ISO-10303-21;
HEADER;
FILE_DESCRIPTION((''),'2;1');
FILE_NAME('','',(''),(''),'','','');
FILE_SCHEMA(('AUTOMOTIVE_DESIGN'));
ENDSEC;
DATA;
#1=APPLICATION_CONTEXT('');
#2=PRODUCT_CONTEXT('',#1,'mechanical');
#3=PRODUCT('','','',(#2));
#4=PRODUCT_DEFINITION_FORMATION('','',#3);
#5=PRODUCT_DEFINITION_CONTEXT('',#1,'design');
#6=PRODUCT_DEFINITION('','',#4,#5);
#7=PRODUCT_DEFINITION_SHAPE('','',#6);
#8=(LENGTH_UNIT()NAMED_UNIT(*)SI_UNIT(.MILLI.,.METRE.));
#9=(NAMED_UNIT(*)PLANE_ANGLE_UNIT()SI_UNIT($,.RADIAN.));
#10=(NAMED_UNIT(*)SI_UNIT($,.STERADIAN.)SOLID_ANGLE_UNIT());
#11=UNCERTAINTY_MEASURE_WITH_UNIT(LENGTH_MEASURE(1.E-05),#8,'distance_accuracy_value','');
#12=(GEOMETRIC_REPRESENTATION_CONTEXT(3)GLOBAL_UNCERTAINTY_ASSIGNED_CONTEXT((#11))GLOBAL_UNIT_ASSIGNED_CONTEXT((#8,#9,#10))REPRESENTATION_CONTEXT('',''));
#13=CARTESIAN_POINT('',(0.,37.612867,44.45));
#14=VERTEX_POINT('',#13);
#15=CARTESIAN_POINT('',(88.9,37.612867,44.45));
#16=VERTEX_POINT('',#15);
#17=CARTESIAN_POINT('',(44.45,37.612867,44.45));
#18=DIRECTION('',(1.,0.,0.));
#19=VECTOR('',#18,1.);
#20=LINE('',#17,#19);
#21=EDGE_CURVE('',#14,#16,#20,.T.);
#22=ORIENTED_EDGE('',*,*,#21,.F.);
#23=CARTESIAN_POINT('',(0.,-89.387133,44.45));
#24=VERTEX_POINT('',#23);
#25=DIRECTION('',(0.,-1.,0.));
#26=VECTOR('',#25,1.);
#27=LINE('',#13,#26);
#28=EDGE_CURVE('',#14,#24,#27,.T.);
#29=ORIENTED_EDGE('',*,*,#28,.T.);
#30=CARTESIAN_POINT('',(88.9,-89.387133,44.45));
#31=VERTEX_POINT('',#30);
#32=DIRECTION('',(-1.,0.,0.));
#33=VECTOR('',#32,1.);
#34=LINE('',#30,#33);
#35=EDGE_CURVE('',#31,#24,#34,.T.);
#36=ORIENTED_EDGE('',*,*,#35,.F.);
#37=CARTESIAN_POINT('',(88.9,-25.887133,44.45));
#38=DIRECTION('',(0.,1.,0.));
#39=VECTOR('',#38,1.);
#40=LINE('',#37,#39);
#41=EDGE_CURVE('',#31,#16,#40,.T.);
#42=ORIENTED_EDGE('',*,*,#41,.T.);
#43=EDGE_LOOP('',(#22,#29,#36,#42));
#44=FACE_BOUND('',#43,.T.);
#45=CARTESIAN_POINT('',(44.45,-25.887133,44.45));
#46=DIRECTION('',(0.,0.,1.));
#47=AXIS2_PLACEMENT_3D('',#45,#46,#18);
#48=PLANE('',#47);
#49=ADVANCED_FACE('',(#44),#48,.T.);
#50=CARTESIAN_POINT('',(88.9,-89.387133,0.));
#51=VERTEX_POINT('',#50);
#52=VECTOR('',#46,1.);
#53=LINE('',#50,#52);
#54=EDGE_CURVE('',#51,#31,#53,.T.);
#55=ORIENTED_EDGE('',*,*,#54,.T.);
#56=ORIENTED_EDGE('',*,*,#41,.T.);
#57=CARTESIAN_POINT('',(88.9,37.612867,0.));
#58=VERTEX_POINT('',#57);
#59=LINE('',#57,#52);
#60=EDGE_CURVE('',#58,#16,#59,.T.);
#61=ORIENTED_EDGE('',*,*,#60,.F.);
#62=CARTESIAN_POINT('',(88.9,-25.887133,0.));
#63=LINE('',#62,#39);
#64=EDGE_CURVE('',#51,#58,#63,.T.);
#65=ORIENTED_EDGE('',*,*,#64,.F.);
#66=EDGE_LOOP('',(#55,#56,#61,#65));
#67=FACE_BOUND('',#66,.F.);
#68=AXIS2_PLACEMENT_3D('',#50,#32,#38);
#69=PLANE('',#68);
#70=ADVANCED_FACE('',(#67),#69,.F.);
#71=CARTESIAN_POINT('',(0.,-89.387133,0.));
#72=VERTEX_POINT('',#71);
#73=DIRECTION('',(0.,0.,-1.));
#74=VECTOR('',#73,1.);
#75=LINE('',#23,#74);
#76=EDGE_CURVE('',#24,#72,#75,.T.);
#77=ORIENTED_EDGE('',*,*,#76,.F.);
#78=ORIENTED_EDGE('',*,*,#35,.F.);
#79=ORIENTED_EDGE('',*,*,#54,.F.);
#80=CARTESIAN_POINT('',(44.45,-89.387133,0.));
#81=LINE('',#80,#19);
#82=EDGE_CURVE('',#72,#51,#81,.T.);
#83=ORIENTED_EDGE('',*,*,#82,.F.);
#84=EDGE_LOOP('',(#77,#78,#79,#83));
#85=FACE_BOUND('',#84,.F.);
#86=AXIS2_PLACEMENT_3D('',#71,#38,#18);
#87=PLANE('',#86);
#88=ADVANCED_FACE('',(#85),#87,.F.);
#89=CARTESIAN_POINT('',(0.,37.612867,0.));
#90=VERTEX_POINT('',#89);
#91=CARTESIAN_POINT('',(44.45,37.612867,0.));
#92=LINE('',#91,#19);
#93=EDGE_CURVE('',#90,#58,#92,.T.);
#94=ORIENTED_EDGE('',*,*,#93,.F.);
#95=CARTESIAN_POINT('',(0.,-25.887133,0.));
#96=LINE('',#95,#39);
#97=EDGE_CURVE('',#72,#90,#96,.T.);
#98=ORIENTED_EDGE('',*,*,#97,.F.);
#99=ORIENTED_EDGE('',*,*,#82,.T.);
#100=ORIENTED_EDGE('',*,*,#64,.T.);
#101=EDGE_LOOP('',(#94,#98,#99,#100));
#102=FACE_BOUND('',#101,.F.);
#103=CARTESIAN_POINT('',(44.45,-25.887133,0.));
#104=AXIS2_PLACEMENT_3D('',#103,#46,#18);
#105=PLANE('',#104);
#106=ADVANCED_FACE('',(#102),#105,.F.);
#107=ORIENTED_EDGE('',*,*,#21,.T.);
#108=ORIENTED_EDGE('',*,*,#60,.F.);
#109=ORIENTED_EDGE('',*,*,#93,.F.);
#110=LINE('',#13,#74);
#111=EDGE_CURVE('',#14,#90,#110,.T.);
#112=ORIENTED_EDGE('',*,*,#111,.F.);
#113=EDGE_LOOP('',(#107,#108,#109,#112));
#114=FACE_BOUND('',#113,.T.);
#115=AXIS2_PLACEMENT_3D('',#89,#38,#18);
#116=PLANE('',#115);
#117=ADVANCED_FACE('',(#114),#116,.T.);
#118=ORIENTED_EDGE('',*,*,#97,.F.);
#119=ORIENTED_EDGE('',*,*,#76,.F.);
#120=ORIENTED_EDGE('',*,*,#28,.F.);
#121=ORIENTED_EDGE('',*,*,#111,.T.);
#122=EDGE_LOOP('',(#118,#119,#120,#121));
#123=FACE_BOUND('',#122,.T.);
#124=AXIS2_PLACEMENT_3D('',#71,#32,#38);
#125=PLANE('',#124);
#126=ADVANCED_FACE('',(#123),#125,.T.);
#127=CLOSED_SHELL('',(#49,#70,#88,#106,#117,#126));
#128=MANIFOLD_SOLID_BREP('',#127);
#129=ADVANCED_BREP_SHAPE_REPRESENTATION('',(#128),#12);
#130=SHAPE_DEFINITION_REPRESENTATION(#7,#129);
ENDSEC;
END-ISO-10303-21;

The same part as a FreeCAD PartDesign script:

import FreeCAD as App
import Part
import Sketcher

V = App.Vector
Q = App.Units.Quantity


def add_polygon(sketch, points):
    """Adds a closed chain of lines whose ends are joined by coincident constraints."""
    first, n = sketch.GeometryCount, len(points)
    for a, b in zip(points, points[1:] + points[:1]):
        sketch.addGeometry(Part.LineSegment(App.Vector(*a, 0), App.Vector(*b, 0)), False)
    for i in range(n):
        sketch.addConstraint(Sketcher.Constraint("Coincident", first + i, 2, first + (i + 1) % n, 1))

doc = App.newDocument("Part")
params = doc.addObject("Spreadsheet::Sheet", "Params")
for row, (alias, value) in enumerate([
    ("sketch1_height", "5 in"),
    ("sketch1_width", "3.5 in"),
    ("pad1_length", "1.75 in"),
    ("sketch2_height", "5 in"),
    ("sketch2_width", "3.5 in"),
    ("pad2_length", "1.69 in"),
], start=1):
    params.set(f"A{row}", alias)
    params.set(f"B{row}", "=" + value)
    params.setAlias(f"B{row}", alias)

body = doc.addObject("PartDesign::Body", "Body")

# Sketch on XY plane
sketch1 = body.newObject("Sketcher::SketchObject", "Sketch")
sketch1.AttachmentSupport = (doc.getObject("XY_Plane"), [""])
sketch1.MapMode = "FlatFace"
add_polygon(sketch1, [(0, 37.612867), (0, -89.387133), (88.9, -89.387133), (88.9, 37.612867)])  # lines 0-3
sketch1.addConstraint(Sketcher.Constraint("Vertical", 0))
sketch1.addConstraint(Sketcher.Constraint("Horizontal", 1))
sketch1.addConstraint(Sketcher.Constraint("Vertical", 2))
sketch1.addConstraint(Sketcher.Constraint("Horizontal", 3))
sketch1.addConstraint(Sketcher.Constraint("PointOnObject", 0, 2, -2))
sketch1.addConstraint(Sketcher.Constraint("DistanceY", 0, 2, 0, 1, Q("5 in")))
sketch1.addConstraint(Sketcher.Constraint("DistanceX", 1, 1, 1, 2, Q("3.5 in")))
sketch1.addConstraint(Sketcher.Constraint("DistanceY", 0, 2, -1, 1, 89.387133))
sketch1.setExpression("Constraints[9]", "Params.sketch1_height")
sketch1.setExpression("Constraints[10]", "Params.sketch1_width")
pad1 = body.newObject("PartDesign::Pad", "Pad")
pad1.Profile = sketch1
pad1.setExpression("Length", "Params.pad1_length")

# Sketch on XY plane
sketch2 = body.newObject("Sketcher::SketchObject", "Sketch001")
sketch2.AttachmentSupport = (doc.getObject("XY_Plane"), [""])
sketch2.MapMode = "FlatFace"
sketch2.AttachmentOffset = App.Placement(V(0, 0, 1.75 * 25.4), App.Rotation())
add_polygon(sketch2, [(88.9, 37.612867), (0, 37.612867), (0, -89.387133), (88.9, -89.387133)])  # lines 0-3
sketch2.addConstraint(Sketcher.Constraint("Horizontal", 0))
sketch2.addConstraint(Sketcher.Constraint("Vertical", 1))
sketch2.addConstraint(Sketcher.Constraint("Horizontal", 2))
sketch2.addConstraint(Sketcher.Constraint("Vertical", 3))
sketch2.addConstraint(Sketcher.Constraint("PointOnObject", 0, 2, -2))
sketch2.addConstraint(Sketcher.Constraint("DistanceY", 1, 2, 1, 1, Q("5 in")))
sketch2.addConstraint(Sketcher.Constraint("DistanceX", 0, 2, 0, 1, Q("3.5 in")))
sketch2.addConstraint(Sketcher.Constraint("DistanceY", -1, 1, 0, 2, 37.612867))
sketch2.setExpression("Constraints[9]", "Params.sketch2_height")
sketch2.setExpression("Constraints[10]", "Params.sketch2_width")
pad2 = body.newObject("PartDesign::Pad", "Pad001")
pad2.Profile = sketch2
pad2.setExpression("Length", "Params.pad2_length")
pad2.Reversed = True

doc.recompute()
